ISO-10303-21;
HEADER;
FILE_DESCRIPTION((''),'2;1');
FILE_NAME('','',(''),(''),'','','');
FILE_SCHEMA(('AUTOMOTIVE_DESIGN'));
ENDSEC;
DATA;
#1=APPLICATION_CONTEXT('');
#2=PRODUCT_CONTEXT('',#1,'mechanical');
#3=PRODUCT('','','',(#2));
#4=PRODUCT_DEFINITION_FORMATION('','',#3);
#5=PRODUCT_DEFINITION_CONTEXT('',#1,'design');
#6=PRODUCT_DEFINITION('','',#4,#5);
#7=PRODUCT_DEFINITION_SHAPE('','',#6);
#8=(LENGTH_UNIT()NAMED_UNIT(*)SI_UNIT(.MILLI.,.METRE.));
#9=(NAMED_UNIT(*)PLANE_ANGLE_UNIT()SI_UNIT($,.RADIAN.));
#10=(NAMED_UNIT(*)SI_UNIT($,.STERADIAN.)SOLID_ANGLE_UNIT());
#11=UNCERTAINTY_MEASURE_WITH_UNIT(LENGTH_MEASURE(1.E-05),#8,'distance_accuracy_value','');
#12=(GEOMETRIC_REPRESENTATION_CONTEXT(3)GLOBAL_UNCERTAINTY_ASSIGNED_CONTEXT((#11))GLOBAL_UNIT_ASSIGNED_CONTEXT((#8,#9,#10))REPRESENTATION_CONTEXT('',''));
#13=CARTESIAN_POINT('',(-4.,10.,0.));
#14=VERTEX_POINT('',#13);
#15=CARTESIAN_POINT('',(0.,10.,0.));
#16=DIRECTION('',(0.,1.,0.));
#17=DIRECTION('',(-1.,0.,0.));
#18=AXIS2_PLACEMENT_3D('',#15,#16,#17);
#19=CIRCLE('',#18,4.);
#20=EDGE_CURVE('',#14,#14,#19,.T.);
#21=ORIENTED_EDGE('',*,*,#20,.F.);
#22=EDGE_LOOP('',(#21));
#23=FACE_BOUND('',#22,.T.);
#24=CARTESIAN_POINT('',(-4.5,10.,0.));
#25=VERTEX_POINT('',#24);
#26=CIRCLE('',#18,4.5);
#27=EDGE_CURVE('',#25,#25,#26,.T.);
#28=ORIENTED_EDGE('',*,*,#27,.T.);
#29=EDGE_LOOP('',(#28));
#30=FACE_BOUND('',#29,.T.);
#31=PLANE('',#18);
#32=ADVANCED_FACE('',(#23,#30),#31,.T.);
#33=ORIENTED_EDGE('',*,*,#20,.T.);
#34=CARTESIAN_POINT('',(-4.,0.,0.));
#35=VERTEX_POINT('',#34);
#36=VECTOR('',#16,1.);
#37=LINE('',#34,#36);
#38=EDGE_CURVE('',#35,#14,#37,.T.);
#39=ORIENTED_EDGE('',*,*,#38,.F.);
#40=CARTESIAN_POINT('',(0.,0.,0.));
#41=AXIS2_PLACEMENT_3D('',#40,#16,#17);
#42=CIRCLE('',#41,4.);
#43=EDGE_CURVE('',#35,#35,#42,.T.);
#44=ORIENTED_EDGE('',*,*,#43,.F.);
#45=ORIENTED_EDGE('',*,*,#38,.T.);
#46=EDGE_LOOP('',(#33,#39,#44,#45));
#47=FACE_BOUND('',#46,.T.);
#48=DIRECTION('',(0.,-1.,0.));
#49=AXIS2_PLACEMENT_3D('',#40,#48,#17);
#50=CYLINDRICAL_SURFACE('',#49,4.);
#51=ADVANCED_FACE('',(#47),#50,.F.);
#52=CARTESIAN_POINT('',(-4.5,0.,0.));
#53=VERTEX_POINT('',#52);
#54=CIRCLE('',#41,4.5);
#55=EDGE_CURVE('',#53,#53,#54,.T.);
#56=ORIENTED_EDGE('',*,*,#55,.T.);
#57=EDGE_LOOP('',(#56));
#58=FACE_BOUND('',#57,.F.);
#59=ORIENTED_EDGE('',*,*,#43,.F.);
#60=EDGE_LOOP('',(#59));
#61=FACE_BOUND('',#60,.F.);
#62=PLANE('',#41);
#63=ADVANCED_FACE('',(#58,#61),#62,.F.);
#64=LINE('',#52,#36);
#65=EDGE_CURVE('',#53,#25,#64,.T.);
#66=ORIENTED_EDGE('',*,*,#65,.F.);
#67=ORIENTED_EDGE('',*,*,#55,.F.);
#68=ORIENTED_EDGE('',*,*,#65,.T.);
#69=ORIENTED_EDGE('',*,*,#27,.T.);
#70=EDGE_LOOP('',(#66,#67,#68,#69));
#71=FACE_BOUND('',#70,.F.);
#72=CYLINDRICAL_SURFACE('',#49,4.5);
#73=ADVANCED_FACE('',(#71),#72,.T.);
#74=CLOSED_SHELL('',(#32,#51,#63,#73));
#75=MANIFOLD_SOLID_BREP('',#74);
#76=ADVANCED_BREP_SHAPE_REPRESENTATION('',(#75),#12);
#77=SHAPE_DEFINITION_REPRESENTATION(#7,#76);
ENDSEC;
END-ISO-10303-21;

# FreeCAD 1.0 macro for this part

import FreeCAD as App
import Part
import Sketcher
Q = App.Units.Quantity

doc = App.newDocument("Part")
body = doc.addObject("PartDesign::Body", "Body")

# Sketch on XZ plane
sketch1 = body.newObject("Sketcher::SketchObject", "Sketch")
sketch1.AttachmentSupport = (doc.getObject("XZ_Plane"), [""])
sketch1.MapMode = "FlatFace"
sketch1.addGeometry([
    Part.Circle(App.Vector(0, 0, 0), App.Vector(0, 0, 1), 4.5),
    Part.Circle(App.Vector(0, 0, 0), App.Vector(0, 0, 1), 4),
], False)
sketch1.addConstraint([
    Sketcher.Constraint("Coincident", 0, 3, -1, 1),
    Sketcher.Constraint("Coincident", 1, 3, -1, 1),
    Sketcher.Constraint("Diameter", 0, Q("9 mm")),
    Sketcher.Constraint("Diameter", 1, Q("8 mm")),
])
pad1 = body.newObject("PartDesign::Pad", "Pad")
pad1.Profile = sketch1
pad1.Length = 10
pad1.Reversed = True

doc.recompute()
